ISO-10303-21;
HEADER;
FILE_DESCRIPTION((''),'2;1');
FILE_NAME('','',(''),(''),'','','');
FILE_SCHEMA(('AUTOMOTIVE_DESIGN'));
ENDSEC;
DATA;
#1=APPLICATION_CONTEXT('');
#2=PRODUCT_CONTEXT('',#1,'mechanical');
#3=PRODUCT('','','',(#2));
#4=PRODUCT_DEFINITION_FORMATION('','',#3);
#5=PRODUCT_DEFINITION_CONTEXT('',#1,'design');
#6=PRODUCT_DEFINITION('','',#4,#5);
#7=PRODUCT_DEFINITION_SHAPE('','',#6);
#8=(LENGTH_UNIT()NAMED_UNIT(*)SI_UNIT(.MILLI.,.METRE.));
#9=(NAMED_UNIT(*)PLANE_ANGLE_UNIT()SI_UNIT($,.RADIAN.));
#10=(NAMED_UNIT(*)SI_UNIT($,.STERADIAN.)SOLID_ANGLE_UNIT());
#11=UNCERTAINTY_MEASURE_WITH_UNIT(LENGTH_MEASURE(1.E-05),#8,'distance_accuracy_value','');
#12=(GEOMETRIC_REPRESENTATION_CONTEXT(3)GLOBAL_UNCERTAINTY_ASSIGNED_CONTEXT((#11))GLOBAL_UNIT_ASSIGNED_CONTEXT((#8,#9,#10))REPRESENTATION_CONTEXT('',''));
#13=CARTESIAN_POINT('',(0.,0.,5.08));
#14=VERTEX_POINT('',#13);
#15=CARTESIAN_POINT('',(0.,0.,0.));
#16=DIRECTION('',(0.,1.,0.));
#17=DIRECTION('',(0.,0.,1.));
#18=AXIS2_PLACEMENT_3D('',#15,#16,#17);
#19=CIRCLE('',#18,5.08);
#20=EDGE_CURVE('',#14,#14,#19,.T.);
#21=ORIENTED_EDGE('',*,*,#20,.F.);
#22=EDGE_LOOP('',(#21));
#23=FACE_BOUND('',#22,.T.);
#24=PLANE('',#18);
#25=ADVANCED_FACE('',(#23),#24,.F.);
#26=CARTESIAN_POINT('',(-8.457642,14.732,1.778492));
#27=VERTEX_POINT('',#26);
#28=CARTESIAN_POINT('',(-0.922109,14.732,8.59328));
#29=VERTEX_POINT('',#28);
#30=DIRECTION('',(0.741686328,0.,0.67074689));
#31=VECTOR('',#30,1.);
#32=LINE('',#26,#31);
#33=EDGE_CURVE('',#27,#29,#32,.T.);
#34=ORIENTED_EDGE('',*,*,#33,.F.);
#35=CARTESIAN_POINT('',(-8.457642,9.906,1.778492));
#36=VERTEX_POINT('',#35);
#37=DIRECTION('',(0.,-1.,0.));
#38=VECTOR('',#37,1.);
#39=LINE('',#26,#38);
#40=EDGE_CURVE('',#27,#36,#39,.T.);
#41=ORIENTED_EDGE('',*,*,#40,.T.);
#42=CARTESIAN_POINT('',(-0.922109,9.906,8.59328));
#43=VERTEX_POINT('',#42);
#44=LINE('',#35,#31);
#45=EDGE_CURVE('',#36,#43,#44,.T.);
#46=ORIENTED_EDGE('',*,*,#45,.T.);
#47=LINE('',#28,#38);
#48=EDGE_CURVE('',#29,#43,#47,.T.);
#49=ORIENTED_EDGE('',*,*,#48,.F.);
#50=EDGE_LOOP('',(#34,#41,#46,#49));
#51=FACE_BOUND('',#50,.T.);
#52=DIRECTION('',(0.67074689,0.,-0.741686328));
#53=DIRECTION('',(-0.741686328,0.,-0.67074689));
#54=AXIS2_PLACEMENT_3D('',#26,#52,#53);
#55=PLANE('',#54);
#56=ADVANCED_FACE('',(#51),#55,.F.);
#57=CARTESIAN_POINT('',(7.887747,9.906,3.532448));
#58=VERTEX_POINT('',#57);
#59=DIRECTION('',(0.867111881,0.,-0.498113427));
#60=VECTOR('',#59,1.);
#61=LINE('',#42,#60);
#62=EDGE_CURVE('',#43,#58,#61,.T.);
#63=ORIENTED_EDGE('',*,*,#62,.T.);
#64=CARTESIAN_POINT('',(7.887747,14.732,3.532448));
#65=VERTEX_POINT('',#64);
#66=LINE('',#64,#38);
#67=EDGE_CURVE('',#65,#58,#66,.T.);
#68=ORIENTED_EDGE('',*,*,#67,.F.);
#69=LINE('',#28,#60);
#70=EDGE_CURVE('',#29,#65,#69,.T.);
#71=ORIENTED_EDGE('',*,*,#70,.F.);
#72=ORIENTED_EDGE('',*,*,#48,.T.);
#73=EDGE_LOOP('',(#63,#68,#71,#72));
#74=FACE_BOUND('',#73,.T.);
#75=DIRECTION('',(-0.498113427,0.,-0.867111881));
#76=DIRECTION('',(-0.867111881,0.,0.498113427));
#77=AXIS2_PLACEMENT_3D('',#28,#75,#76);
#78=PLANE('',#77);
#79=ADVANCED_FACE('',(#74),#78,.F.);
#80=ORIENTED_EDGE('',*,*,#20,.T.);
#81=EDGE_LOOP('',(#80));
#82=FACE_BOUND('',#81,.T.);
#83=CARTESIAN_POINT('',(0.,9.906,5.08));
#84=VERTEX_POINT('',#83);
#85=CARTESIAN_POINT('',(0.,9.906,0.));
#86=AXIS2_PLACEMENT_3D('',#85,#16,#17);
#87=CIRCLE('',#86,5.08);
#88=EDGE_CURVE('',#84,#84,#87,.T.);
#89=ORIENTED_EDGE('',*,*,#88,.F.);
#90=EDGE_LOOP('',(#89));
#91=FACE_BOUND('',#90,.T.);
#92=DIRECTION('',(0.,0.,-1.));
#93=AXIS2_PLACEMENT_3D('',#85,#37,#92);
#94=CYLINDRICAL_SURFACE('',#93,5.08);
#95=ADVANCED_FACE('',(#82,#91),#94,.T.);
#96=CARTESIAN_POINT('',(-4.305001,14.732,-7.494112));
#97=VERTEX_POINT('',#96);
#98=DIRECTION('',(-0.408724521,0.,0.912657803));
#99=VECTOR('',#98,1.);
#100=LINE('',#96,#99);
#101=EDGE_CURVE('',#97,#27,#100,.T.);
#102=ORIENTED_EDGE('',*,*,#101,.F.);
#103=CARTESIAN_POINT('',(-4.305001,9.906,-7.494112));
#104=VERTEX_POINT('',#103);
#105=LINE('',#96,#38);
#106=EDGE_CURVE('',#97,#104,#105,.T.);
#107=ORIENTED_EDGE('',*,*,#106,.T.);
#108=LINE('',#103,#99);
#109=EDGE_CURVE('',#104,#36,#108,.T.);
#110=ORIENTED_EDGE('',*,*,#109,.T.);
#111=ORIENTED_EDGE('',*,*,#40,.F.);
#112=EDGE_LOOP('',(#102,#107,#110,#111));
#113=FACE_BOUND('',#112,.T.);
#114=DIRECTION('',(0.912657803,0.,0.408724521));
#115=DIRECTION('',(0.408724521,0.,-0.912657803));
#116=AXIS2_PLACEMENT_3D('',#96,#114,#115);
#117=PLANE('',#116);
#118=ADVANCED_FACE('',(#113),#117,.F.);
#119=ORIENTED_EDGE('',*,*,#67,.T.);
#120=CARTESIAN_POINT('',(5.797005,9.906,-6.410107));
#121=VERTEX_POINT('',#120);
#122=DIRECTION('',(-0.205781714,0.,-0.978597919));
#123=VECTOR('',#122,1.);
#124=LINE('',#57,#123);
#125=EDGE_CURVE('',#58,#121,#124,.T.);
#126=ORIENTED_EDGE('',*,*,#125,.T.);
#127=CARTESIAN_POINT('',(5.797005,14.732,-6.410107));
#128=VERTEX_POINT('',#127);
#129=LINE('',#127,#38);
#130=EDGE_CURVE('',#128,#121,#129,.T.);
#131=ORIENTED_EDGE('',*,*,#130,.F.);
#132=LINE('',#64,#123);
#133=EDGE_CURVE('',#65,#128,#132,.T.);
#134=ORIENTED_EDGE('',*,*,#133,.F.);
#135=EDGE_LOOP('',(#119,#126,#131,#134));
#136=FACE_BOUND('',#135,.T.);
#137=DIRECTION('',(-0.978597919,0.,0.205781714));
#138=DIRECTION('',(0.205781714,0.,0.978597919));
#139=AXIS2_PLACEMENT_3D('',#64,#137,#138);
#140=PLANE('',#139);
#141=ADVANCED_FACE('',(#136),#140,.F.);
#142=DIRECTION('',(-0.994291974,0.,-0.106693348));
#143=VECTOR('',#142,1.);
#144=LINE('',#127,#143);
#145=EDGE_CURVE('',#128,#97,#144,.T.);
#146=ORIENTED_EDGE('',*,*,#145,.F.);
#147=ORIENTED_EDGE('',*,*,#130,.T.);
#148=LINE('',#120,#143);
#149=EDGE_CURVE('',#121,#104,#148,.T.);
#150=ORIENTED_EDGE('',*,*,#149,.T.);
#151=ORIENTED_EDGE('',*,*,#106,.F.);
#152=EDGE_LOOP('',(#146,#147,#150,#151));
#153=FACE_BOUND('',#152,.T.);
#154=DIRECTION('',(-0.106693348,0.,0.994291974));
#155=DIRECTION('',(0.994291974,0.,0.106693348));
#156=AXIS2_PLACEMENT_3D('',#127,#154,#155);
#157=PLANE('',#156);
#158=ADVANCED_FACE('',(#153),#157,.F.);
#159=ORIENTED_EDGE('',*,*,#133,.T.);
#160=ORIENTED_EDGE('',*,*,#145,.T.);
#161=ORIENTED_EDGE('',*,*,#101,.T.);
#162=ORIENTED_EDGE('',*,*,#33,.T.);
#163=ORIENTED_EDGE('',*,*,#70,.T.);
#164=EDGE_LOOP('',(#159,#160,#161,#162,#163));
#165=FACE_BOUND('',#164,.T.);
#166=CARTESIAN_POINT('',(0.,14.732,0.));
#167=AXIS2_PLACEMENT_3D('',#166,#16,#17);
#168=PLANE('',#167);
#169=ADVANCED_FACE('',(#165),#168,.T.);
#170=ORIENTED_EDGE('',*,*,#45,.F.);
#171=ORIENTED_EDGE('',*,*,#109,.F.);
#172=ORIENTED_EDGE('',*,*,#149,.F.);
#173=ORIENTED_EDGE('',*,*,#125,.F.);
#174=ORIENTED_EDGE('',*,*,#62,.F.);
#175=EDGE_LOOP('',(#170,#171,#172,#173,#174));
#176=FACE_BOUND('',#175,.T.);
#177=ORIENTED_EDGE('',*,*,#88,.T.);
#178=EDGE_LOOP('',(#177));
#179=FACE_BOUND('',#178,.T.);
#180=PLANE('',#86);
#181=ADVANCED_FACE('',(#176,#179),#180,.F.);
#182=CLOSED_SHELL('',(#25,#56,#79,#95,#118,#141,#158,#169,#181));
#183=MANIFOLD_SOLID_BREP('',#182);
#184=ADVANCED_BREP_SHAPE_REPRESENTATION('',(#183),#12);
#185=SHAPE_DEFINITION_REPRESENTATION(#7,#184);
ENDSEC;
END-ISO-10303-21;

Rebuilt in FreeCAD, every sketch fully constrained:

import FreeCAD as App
import Part
import Sketcher

V = App.Vector
Q = App.Units.Quantity


def add_polygon(sketch, points):
    """Adds a closed chain of lines whose ends are joined by coincident constraints."""
    first, n = sketch.GeometryCount, len(points)
    for a, b in zip(points, points[1:] + points[:1]):
        sketch.addGeometry(Part.LineSegment(App.Vector(*a, 0), App.Vector(*b, 0)), False)
    for i in range(n):
        sketch.addConstraint(Sketcher.Constraint("Coincident", first + i, 2, first + (i + 1) % n, 1))

doc = App.newDocument("Part")
body = doc.addObject("PartDesign::Body", "Body")

# Sketch on XZ plane
sketch1 = doc.addObject("Sketcher::SketchObject", "Sketch")
body.addObject(sketch1)
sketch1.AttachmentSupport = (doc.XZ_Plane, [""])
sketch1.MapMode = "FlatFace"
sketch1.addGeometry(Part.Circle(V(0, 0, 0), V(0, 0, 1), 5), False)
sketch1.addConstraint(Sketcher.Constraint("Coincident", 0, 3, -1, 1))
sketch1.addConstraint(Sketcher.Constraint("Diameter", 0, Q("0.4 in")))
pad1 = doc.addObject("PartDesign::Pad", "Pad")
body.addObject(pad1)
pad1.Profile = sketch1
pad1.Length = Q("0.39 in")
pad1.Reversed = True

# Sketch on XZ plane
sketch2 = doc.addObject("Sketcher::SketchObject", "Sketch001")
body.addObject(sketch2)
sketch2.AttachmentSupport = (doc.XZ_Plane, [""])
sketch2.MapMode = "FlatFace"
sketch2.AttachmentOffset = App.Placement(V(0, 0, -0.39 * 25.4), App.Rotation())
add_polygon(sketch2, [(8, 4), (6, -6), (-4, -7), (-8, 2), (-1, 9)])  # lines 0-4
sketch2.addConstraint(Sketcher.Constraint("Equal", 0, 1))
sketch2.addConstraint(Sketcher.Constraint("Equal", 1, 2))
sketch2.addConstraint(Sketcher.Constraint("Equal", 2, 3))
sketch2.addConstraint(Sketcher.Constraint("Equal", 3, 4))
sketch2.addConstraint(Sketcher.Constraint("Distance", 0, Q("0.4 in")))
sketch2.addConstraint(Sketcher.Constraint("DistanceX", 1, 2, -1, 1, Q("4.305001 mm")))
sketch2.addConstraint(Sketcher.Constraint("DistanceY", 0, 2, 2, 2, Q("8.188599 mm")))
sketch2.addConstraint(Sketcher.Constraint("DistanceY", 1, 2, -1, 1, Q("7.494112 mm")))
sketch2.addConstraint(Sketcher.Constraint("DistanceY", -1, 1, 2, 2, Q("1.778492 mm")))
sketch2.addConstraint(Sketcher.Constraint("DistanceX", 3, 2, -1, 1, Q("0.922109 mm")))
pad2 = doc.addObject("PartDesign::Pad", "Pad001")
body.addObject(pad2)
pad2.Profile = sketch2
pad2.Length = Q("0.19 in")
pad2.Reversed = True

doc.recompute()
